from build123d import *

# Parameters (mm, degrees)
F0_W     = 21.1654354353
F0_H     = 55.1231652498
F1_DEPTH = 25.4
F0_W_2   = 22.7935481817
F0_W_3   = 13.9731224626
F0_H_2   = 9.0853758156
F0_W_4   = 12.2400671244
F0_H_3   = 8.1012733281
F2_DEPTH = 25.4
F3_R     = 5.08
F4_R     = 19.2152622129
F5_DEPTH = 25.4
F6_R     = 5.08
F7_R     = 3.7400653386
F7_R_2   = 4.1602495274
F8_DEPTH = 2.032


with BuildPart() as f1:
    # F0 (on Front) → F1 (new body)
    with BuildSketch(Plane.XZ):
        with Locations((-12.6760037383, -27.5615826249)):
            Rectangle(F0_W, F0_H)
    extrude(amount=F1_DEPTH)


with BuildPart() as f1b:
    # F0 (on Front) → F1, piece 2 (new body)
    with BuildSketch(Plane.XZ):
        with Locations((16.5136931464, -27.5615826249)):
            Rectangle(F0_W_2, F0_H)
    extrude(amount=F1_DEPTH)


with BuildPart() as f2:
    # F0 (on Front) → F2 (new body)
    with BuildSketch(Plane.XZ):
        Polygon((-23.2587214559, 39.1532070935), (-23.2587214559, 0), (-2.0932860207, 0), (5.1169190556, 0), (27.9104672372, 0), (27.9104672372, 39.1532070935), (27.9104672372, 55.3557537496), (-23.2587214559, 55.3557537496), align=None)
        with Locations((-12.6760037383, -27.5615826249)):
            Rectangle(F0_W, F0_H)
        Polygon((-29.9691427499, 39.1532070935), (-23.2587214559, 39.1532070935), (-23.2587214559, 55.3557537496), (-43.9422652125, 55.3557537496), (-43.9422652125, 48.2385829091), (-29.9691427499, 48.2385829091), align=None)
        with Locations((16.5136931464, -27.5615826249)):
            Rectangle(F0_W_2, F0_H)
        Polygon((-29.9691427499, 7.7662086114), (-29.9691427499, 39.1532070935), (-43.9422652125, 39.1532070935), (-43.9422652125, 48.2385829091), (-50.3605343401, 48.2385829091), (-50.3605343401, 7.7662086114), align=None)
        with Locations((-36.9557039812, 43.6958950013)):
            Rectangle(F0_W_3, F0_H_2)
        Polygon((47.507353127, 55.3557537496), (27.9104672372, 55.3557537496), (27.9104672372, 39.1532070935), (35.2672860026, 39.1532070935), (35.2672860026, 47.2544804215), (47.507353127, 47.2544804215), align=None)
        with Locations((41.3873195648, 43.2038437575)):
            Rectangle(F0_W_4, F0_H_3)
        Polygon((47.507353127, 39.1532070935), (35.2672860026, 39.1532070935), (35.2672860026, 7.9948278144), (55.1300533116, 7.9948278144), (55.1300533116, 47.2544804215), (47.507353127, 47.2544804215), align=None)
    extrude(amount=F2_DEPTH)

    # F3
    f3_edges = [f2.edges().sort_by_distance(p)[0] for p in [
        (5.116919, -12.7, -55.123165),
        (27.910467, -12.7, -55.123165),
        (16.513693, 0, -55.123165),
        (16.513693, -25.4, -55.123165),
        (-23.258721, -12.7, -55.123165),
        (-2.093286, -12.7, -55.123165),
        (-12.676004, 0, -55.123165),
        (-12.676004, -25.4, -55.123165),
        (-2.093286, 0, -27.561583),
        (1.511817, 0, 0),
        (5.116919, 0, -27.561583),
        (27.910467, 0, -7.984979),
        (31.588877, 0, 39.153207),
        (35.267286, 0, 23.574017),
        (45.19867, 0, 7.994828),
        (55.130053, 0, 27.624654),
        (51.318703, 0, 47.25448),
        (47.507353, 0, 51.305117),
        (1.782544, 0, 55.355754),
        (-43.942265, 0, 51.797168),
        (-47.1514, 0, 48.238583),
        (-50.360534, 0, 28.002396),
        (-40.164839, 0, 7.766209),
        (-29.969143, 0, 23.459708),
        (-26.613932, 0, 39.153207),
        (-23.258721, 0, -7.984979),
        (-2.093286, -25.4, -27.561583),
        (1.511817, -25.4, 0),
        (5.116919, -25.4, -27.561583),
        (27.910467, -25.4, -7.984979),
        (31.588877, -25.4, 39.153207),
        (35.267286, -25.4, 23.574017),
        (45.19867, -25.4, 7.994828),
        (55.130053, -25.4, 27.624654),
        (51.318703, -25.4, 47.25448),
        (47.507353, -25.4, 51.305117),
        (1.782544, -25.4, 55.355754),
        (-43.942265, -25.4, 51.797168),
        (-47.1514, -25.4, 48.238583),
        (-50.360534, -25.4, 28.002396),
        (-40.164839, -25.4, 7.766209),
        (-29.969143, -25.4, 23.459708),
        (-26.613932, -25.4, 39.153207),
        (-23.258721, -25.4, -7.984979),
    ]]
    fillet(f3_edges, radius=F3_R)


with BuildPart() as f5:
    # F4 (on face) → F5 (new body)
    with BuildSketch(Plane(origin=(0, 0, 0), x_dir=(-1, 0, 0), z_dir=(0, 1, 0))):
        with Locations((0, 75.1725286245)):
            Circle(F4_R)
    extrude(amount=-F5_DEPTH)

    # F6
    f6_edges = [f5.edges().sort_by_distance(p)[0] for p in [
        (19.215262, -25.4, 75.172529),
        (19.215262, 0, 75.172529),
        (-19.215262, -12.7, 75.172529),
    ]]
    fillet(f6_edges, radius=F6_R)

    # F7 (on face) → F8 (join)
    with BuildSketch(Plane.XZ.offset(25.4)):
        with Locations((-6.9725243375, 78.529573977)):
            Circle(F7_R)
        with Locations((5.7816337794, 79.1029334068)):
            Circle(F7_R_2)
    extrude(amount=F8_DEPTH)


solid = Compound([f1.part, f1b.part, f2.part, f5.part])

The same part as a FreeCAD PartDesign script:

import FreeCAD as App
import Part
import Sketcher
from FreeCAD import Vector
Q = App.Units.Quantity


def edges_at(feature, points):
    """Names of the edges that pass closest to the given points."""
    edges = feature.Shape.Edges
    near = lambda p: min(range(len(edges)), key=lambda i: edges[i].distToShape(Part.Vertex(*p))[0])
    return sorted({f"Edge{near(p) + 1}" for p in points})

doc = App.newDocument("Part")
params = doc.addObject("Spreadsheet::Sheet", "Params")
for row, (alias, value) in enumerate([
    ("pad1_length", "1 in"),
    ("pad2_length", "1 in"),
    ("pad3_length", "1 in"),
    ("fillet_radius", "0.2 in"),
    ("pad4_length", "1 in"),
    ("fillet2_radius", "0.2 in"),
    ("pad5_length", "0.08 in"),
], start=1):
    params.set(f"A{row}", alias)
    params.set(f"B{row}", "=" + value)
    params.setAlias(f"B{row}", alias)

body = doc.addObject("PartDesign::Body", "Body")

sketch1 = body.newObject("Sketcher::SketchObject", "Sketch")
sketch1.AttachmentSupport = (doc.getObject("XZ_Plane"), [""])
sketch1.MapMode = "FlatFace"
sketch1.addGeometry([
    Part.LineSegment(Vector(-23, 0, 0), Vector(-23, -55, 0)),
    Part.LineSegment(Vector(-23, -55, 0), Vector(-2, -55, 0)),
    Part.LineSegment(Vector(-2, -55, 0), Vector(-2, 0, 0)),
    Part.LineSegment(Vector(-2, 0, 0), Vector(-23, 0, 0)),
], False)
sketch1.addConstraint([
    Sketcher.Constraint("Coincident", 0, 2, 1, 1),
    Sketcher.Constraint("Coincident", 1, 2, 2, 1),
    Sketcher.Constraint("Coincident", 2, 2, 3, 1),
    Sketcher.Constraint("Coincident", 3, 2, 0, 1),
    Sketcher.Constraint("Vertical", 0),
    Sketcher.Constraint("Horizontal", 1),
    Sketcher.Constraint("Vertical", 2),
    Sketcher.Constraint("Horizontal", 3),
    Sketcher.Constraint("PointOnObject", 2, 2, -1),
    Sketcher.Constraint("DistanceX", 1, 1, 1, 2, 21.165435),
    Sketcher.Constraint("DistanceY", 0, 2, 0, 1, 55.123165),
    Sketcher.Constraint("DistanceX", 0, 2, -1, 1, 23.258721),
])
pad1 = body.newObject("PartDesign::Pad", "Pad")
pad1.Profile = sketch1
pad1.setExpression("Length", "Params.pad1_length")
body2 = doc.addObject("PartDesign::Body", "Body001")

sketch2 = body2.newObject("Sketcher::SketchObject", "Sketch001")
sketch2.AttachmentSupport = (doc.getObject("XZ_Plane001"), [""])
sketch2.MapMode = "FlatFace"
sketch2.addGeometry([
    Part.LineSegment(Vector(5, 0, 0), Vector(5, -55, 0)),
    Part.LineSegment(Vector(5, -55, 0), Vector(28, -55, 0)),
    Part.LineSegment(Vector(28, -55, 0), Vector(28, 0, 0)),
    Part.LineSegment(Vector(28, 0, 0), Vector(5, 0, 0)),
], False)
sketch2.addConstraint([
    Sketcher.Constraint("Coincident", 0, 2, 1, 1),
    Sketcher.Constraint("Coincident", 1, 2, 2, 1),
    Sketcher.Constraint("Coincident", 2, 2, 3, 1),
    Sketcher.Constraint("Coincident", 3, 2, 0, 1),
    Sketcher.Constraint("Vertical", 0),
    Sketcher.Constraint("Horizontal", 1),
    Sketcher.Constraint("Vertical", 2),
    Sketcher.Constraint("Horizontal", 3),
    Sketcher.Constraint("PointOnObject", 2, 2, -1),
    Sketcher.Constraint("DistanceX", 1, 1, 1, 2, 22.793548),
    Sketcher.Constraint("DistanceY", 0, 2, 0, 1, 55.123165),
    Sketcher.Constraint("DistanceX", -1, 1, 0, 2, 5.116919),
])
pad2 = body2.newObject("PartDesign::Pad", "Pad001")
pad2.Profile = sketch2
pad2.setExpression("Length", "Params.pad2_length")
body3 = doc.addObject("PartDesign::Body", "Body002")

sketch3 = body3.newObject("Sketcher::SketchObject", "Sketch002")
sketch3.AttachmentSupport = (doc.getObject("XZ_Plane002"), [""])
sketch3.MapMode = "FlatFace"
sketch3.addGeometry([
    Part.LineSegment(Vector(-2, 0, 0), Vector(5, 0, 0)),
    Part.LineSegment(Vector(5, 0, 0), Vector(5, -55, 0)),
    Part.LineSegment(Vector(5, -55, 0), Vector(28, -55, 0)),
    Part.LineSegment(Vector(28, -55, 0), Vector(28, 39, 0)),
    Part.LineSegment(Vector(28, 39, 0), Vector(35, 39, 0)),
    Part.LineSegment(Vector(35, 39, 0), Vector(35, 8, 0)),
    Part.LineSegment(Vector(35, 8, 0), Vector(55, 8, 0)),
    Part.LineSegment(Vector(55, 8, 0), Vector(55, 47, 0)),
    Part.LineSegment(Vector(55, 47, 0), Vector(48, 47, 0)),
    Part.LineSegment(Vector(48, 47, 0), Vector(48, 55, 0)),
    Part.LineSegment(Vector(48, 55, 0), Vector(-44, 55, 0)),
    Part.LineSegment(Vector(-44, 55, 0), Vector(-44, 48, 0)),
    Part.LineSegment(Vector(-44, 48, 0), Vector(-50, 48, 0)),
    Part.LineSegment(Vector(-50, 48, 0), Vector(-50, 8, 0)),
    Part.LineSegment(Vector(-50, 8, 0), Vector(-30, 8, 0)),
    Part.LineSegment(Vector(-30, 8, 0), Vector(-30, 39, 0)),
    Part.LineSegment(Vector(-30, 39, 0), Vector(-23, 39, 0)),
    Part.LineSegment(Vector(-23, 39, 0), Vector(-23, -55, 0)),
    Part.LineSegment(Vector(-23, -55, 0), Vector(-2, -55, 0)),
    Part.LineSegment(Vector(-2, -55, 0), Vector(-2, 0, 0)),
], False)
sketch3.addConstraint([
    Sketcher.Constraint("Coincident", 0, 2, 1, 1),
    Sketcher.Constraint("Coincident", 1, 2, 2, 1),
    Sketcher.Constraint("Coincident", 2, 2, 3, 1),
    Sketcher.Constraint("Coincident", 3, 2, 4, 1),
    Sketcher.Constraint("Coincident", 4, 2, 5, 1),
    Sketcher.Constraint("Coincident", 5, 2, 6, 1),
    Sketcher.Constraint("Coincident", 6, 2, 7, 1),
    Sketcher.Constraint("Coincident", 7, 2, 8, 1),
    Sketcher.Constraint("Coincident", 8, 2, 9, 1),
    Sketcher.Constraint("Coincident", 9, 2, 10, 1),
    Sketcher.Constraint("Coincident", 10, 2, 11, 1),
    Sketcher.Constraint("Coincident", 11, 2, 12, 1),
    Sketcher.Constraint("Coincident", 12, 2, 13, 1),
    Sketcher.Constraint("Coincident", 13, 2, 14, 1),
    Sketcher.Constraint("Coincident", 14, 2, 15, 1),
    Sketcher.Constraint("Coincident", 15, 2, 16, 1),
    Sketcher.Constraint("Coincident", 16, 2, 17, 1),
    Sketcher.Constraint("Coincident", 17, 2, 18, 1),
    Sketcher.Constraint("Coincident", 18, 2, 19, 1),
    Sketcher.Constraint("Coincident", 19, 2, 0, 1),
    Sketcher.Constraint("Horizontal", 0),
    Sketcher.Constraint("Vertical", 1),
    Sketcher.Constraint("Horizontal", 2),
    Sketcher.Constraint("Vertical", 3),
    Sketcher.Constraint("Horizontal", 4),
    Sketcher.Constraint("Vertical", 5),
    Sketcher.Constraint("Horizontal", 6),
    Sketcher.Constraint("Vertical", 7),
    Sketcher.Constraint("Horizontal", 8),
    Sketcher.Constraint("Vertical", 9),
    Sketcher.Constraint("Horizontal", 10),
    Sketcher.Constraint("Vertical", 11),
    Sketcher.Constraint("Horizontal", 12),
    Sketcher.Constraint("Vertical", 13),
    Sketcher.Constraint("Horizontal", 14),
    Sketcher.Constraint("Vertical", 15),
    Sketcher.Constraint("Horizontal", 16),
    Sketcher.Constraint("Vertical", 17),
    Sketcher.Constraint("Horizontal", 18),
    Sketcher.Constraint("Vertical", 19),
    Sketcher.Constraint("PointOnObject", 0, 2, -1),
    Sketcher.Constraint("Horizontal", 4, 2, 15, 2),
    Sketcher.Constraint("Horizontal", 2, 2, 17, 2),
    Sketcher.Constraint("DistanceX", 8, 2, 8, 1, 7.6227),
    Sketcher.Constraint("DistanceY", 15, 1, 15, 2, 31.386998),
    Sketcher.Constraint("DistanceY", 5, 2, 11, 2, Q("1.5843998 in")),
    Sketcher.Constraint("DistanceX", 2, 1, 2, 2, 22.793548),
    Sketcher.Constraint("DistanceX", 4, 1, 4, 2, 7.356819),
    Sketcher.Constraint("DistanceX", 10, 2, 10, 1, 91.449618),
    Sketcher.Constraint("DistanceX", 12, 2, 12, 1, 6.418269),
    Sketcher.Constraint("DistanceX", 14, 1, 14, 2, 20.391392),
    Sketcher.Constraint("DistanceX", 16, 1, 16, 2, 6.710421),
    Sketcher.Constraint("DistanceY", 5, 2, 5, 1, 31.158379),
    Sketcher.Constraint("DistanceY", 11, 2, 11, 1, 7.117171),
    Sketcher.Constraint("DistanceX", 12, 2, 3, 2, 78.271002),
    Sketcher.Constraint("DistanceX", 0, 1, 0, 2, 7.210205),
    Sketcher.Constraint("DistanceY", 1, 2, 1, 1, 55.123165),
    Sketcher.Constraint("DistanceY", 3, 1, 3, 2, 94.276372),
    Sketcher.Constraint("DistanceY", 7, 1, 7, 2, 39.259653),
    Sketcher.Constraint("DistanceX", -1, 1, 0, 2, 5.116919),
])
pad3 = body3.newObject("PartDesign::Pad", "Pad002")
pad3.Profile = sketch3
pad3.setExpression("Length", "Params.pad3_length")
doc.recompute()

fillet = body3.newObject("PartDesign::Fillet", "Fillet")
fillet.Base = (pad3, edges_at(pad3, [
    (5.117, -12.7, -55.123),
    (27.91, -12.7, -55.123),
    (16.514, 0, -55.123),
    (16.514, -25.4, -55.123),
    (-23.259, -12.7, -55.123),
    (-2.093, -12.7, -55.123),
    (-12.676, 0, -55.123),
    (-12.676, -25.4, -55.123),
    (-2.093, 0, -27.562),
    (1.512, 0, 0),
    (5.117, 0, -27.562),
    (27.91, 0, -7.985),
    (31.589, 0, 39.153),
    (35.267, 0, 23.574),
    (45.199, 0, 7.995),
    (55.13, 0, 27.625),
    (51.319, 0, 47.254),
    (47.507, 0, 51.305),
    (1.783, 0, 55.356),
    (-43.942, 0, 51.797),
    (-47.151, 0, 48.239),
    (-50.361, 0, 28.002),
    (-40.165, 0, 7.766),
    (-29.969, 0, 23.46),
    (-26.614, 0, 39.153),
    (-23.259, 0, -7.985),
    (-2.093, -25.4, -27.562),
    (1.512, -25.4, 0),
    (5.117, -25.4, -27.562),
    (27.91, -25.4, -7.985),
    (31.589, -25.4, 39.153),
    (35.267, -25.4, 23.574),
    (45.199, -25.4, 7.995),
    (55.13, -25.4, 27.625),
    (51.319, -25.4, 47.254),
    (47.507, -25.4, 51.305),
    (1.783, -25.4, 55.356),
    (-43.942, -25.4, 51.797),
    (-47.151, -25.4, 48.239),
    (-50.361, -25.4, 28.002),
    (-40.165, -25.4, 7.766),
    (-29.969, -25.4, 23.46),
    (-26.614, -25.4, 39.153),
    (-23.259, -25.4, -7.985),
]))
fillet.setExpression("Radius", "Params.fillet_radius")
body4 = doc.addObject("PartDesign::Body", "Body003")

sketch4 = body4.newObject("Sketcher::SketchObject", "Sketch003")
sketch4.AttachmentSupport = (doc.getObject("XZ_Plane003"), [""])
sketch4.MapMode = "FlatFace"
sketch4.addGeometry(Part.Circle(Vector(0, 75, 0), Vector(0, 0, 1), 19), False)
sketch4.addConstraint([
    Sketcher.Constraint("PointOnObject", 0, 3, -2),
    Sketcher.Constraint("Diameter", 0, 38.430524),
    Sketcher.Constraint("DistanceY", -1, 1, 0, 3, 75.172529),
])
pad4 = body4.newObject("PartDesign::Pad", "Pad003")
pad4.Profile = sketch4
pad4.setExpression("Length", "Params.pad4_length")
doc.recompute()

fillet2 = body4.newObject("PartDesign::Fillet", "Fillet001")
fillet2.Base = (pad4, ["Edge1"])
fillet2.UseAllEdges = True
fillet2.setExpression("Radius", "Params.fillet2_radius")

sketch5 = body4.newObject("Sketcher::SketchObject", "Sketch004")
sketch5.AttachmentSupport = (doc.getObject("XZ_Plane003"), [""])
sketch5.MapMode = "FlatFace"
sketch5.AttachmentOffset = App.Placement(Vector(0, 0, 1 * 25.4), App.Rotation())
sketch5.addGeometry([
    Part.Circle(Vector(-7, 78.5, 0), Vector(0, 0, 1), 3.7),
    Part.Circle(Vector(5.8, 79.1, 0), Vector(0, 0, 1), 4.2),
], False)
sketch5.addConstraint([
    Sketcher.Constraint("Diameter", 1, 8.320499),
    Sketcher.Constraint("Diameter", 0, 7.480131),
    Sketcher.Constraint("DistanceX", 0, 3, 1, 3, 12.754158),
    Sketcher.Constraint("DistanceY", 0, 3, 1, 3, 0.573359),
    Sketcher.Constraint("DistanceX", 0, 3, -1, 1, 6.972524),
    Sketcher.Constraint("DistanceY", -1, 1, 0, 3, 78.529574),
])
pad5 = body4.newObject("PartDesign::Pad", "Pad004")
pad5.Profile = sketch5
pad5.setExpression("Length", "Params.pad5_length")

doc.recompute()
